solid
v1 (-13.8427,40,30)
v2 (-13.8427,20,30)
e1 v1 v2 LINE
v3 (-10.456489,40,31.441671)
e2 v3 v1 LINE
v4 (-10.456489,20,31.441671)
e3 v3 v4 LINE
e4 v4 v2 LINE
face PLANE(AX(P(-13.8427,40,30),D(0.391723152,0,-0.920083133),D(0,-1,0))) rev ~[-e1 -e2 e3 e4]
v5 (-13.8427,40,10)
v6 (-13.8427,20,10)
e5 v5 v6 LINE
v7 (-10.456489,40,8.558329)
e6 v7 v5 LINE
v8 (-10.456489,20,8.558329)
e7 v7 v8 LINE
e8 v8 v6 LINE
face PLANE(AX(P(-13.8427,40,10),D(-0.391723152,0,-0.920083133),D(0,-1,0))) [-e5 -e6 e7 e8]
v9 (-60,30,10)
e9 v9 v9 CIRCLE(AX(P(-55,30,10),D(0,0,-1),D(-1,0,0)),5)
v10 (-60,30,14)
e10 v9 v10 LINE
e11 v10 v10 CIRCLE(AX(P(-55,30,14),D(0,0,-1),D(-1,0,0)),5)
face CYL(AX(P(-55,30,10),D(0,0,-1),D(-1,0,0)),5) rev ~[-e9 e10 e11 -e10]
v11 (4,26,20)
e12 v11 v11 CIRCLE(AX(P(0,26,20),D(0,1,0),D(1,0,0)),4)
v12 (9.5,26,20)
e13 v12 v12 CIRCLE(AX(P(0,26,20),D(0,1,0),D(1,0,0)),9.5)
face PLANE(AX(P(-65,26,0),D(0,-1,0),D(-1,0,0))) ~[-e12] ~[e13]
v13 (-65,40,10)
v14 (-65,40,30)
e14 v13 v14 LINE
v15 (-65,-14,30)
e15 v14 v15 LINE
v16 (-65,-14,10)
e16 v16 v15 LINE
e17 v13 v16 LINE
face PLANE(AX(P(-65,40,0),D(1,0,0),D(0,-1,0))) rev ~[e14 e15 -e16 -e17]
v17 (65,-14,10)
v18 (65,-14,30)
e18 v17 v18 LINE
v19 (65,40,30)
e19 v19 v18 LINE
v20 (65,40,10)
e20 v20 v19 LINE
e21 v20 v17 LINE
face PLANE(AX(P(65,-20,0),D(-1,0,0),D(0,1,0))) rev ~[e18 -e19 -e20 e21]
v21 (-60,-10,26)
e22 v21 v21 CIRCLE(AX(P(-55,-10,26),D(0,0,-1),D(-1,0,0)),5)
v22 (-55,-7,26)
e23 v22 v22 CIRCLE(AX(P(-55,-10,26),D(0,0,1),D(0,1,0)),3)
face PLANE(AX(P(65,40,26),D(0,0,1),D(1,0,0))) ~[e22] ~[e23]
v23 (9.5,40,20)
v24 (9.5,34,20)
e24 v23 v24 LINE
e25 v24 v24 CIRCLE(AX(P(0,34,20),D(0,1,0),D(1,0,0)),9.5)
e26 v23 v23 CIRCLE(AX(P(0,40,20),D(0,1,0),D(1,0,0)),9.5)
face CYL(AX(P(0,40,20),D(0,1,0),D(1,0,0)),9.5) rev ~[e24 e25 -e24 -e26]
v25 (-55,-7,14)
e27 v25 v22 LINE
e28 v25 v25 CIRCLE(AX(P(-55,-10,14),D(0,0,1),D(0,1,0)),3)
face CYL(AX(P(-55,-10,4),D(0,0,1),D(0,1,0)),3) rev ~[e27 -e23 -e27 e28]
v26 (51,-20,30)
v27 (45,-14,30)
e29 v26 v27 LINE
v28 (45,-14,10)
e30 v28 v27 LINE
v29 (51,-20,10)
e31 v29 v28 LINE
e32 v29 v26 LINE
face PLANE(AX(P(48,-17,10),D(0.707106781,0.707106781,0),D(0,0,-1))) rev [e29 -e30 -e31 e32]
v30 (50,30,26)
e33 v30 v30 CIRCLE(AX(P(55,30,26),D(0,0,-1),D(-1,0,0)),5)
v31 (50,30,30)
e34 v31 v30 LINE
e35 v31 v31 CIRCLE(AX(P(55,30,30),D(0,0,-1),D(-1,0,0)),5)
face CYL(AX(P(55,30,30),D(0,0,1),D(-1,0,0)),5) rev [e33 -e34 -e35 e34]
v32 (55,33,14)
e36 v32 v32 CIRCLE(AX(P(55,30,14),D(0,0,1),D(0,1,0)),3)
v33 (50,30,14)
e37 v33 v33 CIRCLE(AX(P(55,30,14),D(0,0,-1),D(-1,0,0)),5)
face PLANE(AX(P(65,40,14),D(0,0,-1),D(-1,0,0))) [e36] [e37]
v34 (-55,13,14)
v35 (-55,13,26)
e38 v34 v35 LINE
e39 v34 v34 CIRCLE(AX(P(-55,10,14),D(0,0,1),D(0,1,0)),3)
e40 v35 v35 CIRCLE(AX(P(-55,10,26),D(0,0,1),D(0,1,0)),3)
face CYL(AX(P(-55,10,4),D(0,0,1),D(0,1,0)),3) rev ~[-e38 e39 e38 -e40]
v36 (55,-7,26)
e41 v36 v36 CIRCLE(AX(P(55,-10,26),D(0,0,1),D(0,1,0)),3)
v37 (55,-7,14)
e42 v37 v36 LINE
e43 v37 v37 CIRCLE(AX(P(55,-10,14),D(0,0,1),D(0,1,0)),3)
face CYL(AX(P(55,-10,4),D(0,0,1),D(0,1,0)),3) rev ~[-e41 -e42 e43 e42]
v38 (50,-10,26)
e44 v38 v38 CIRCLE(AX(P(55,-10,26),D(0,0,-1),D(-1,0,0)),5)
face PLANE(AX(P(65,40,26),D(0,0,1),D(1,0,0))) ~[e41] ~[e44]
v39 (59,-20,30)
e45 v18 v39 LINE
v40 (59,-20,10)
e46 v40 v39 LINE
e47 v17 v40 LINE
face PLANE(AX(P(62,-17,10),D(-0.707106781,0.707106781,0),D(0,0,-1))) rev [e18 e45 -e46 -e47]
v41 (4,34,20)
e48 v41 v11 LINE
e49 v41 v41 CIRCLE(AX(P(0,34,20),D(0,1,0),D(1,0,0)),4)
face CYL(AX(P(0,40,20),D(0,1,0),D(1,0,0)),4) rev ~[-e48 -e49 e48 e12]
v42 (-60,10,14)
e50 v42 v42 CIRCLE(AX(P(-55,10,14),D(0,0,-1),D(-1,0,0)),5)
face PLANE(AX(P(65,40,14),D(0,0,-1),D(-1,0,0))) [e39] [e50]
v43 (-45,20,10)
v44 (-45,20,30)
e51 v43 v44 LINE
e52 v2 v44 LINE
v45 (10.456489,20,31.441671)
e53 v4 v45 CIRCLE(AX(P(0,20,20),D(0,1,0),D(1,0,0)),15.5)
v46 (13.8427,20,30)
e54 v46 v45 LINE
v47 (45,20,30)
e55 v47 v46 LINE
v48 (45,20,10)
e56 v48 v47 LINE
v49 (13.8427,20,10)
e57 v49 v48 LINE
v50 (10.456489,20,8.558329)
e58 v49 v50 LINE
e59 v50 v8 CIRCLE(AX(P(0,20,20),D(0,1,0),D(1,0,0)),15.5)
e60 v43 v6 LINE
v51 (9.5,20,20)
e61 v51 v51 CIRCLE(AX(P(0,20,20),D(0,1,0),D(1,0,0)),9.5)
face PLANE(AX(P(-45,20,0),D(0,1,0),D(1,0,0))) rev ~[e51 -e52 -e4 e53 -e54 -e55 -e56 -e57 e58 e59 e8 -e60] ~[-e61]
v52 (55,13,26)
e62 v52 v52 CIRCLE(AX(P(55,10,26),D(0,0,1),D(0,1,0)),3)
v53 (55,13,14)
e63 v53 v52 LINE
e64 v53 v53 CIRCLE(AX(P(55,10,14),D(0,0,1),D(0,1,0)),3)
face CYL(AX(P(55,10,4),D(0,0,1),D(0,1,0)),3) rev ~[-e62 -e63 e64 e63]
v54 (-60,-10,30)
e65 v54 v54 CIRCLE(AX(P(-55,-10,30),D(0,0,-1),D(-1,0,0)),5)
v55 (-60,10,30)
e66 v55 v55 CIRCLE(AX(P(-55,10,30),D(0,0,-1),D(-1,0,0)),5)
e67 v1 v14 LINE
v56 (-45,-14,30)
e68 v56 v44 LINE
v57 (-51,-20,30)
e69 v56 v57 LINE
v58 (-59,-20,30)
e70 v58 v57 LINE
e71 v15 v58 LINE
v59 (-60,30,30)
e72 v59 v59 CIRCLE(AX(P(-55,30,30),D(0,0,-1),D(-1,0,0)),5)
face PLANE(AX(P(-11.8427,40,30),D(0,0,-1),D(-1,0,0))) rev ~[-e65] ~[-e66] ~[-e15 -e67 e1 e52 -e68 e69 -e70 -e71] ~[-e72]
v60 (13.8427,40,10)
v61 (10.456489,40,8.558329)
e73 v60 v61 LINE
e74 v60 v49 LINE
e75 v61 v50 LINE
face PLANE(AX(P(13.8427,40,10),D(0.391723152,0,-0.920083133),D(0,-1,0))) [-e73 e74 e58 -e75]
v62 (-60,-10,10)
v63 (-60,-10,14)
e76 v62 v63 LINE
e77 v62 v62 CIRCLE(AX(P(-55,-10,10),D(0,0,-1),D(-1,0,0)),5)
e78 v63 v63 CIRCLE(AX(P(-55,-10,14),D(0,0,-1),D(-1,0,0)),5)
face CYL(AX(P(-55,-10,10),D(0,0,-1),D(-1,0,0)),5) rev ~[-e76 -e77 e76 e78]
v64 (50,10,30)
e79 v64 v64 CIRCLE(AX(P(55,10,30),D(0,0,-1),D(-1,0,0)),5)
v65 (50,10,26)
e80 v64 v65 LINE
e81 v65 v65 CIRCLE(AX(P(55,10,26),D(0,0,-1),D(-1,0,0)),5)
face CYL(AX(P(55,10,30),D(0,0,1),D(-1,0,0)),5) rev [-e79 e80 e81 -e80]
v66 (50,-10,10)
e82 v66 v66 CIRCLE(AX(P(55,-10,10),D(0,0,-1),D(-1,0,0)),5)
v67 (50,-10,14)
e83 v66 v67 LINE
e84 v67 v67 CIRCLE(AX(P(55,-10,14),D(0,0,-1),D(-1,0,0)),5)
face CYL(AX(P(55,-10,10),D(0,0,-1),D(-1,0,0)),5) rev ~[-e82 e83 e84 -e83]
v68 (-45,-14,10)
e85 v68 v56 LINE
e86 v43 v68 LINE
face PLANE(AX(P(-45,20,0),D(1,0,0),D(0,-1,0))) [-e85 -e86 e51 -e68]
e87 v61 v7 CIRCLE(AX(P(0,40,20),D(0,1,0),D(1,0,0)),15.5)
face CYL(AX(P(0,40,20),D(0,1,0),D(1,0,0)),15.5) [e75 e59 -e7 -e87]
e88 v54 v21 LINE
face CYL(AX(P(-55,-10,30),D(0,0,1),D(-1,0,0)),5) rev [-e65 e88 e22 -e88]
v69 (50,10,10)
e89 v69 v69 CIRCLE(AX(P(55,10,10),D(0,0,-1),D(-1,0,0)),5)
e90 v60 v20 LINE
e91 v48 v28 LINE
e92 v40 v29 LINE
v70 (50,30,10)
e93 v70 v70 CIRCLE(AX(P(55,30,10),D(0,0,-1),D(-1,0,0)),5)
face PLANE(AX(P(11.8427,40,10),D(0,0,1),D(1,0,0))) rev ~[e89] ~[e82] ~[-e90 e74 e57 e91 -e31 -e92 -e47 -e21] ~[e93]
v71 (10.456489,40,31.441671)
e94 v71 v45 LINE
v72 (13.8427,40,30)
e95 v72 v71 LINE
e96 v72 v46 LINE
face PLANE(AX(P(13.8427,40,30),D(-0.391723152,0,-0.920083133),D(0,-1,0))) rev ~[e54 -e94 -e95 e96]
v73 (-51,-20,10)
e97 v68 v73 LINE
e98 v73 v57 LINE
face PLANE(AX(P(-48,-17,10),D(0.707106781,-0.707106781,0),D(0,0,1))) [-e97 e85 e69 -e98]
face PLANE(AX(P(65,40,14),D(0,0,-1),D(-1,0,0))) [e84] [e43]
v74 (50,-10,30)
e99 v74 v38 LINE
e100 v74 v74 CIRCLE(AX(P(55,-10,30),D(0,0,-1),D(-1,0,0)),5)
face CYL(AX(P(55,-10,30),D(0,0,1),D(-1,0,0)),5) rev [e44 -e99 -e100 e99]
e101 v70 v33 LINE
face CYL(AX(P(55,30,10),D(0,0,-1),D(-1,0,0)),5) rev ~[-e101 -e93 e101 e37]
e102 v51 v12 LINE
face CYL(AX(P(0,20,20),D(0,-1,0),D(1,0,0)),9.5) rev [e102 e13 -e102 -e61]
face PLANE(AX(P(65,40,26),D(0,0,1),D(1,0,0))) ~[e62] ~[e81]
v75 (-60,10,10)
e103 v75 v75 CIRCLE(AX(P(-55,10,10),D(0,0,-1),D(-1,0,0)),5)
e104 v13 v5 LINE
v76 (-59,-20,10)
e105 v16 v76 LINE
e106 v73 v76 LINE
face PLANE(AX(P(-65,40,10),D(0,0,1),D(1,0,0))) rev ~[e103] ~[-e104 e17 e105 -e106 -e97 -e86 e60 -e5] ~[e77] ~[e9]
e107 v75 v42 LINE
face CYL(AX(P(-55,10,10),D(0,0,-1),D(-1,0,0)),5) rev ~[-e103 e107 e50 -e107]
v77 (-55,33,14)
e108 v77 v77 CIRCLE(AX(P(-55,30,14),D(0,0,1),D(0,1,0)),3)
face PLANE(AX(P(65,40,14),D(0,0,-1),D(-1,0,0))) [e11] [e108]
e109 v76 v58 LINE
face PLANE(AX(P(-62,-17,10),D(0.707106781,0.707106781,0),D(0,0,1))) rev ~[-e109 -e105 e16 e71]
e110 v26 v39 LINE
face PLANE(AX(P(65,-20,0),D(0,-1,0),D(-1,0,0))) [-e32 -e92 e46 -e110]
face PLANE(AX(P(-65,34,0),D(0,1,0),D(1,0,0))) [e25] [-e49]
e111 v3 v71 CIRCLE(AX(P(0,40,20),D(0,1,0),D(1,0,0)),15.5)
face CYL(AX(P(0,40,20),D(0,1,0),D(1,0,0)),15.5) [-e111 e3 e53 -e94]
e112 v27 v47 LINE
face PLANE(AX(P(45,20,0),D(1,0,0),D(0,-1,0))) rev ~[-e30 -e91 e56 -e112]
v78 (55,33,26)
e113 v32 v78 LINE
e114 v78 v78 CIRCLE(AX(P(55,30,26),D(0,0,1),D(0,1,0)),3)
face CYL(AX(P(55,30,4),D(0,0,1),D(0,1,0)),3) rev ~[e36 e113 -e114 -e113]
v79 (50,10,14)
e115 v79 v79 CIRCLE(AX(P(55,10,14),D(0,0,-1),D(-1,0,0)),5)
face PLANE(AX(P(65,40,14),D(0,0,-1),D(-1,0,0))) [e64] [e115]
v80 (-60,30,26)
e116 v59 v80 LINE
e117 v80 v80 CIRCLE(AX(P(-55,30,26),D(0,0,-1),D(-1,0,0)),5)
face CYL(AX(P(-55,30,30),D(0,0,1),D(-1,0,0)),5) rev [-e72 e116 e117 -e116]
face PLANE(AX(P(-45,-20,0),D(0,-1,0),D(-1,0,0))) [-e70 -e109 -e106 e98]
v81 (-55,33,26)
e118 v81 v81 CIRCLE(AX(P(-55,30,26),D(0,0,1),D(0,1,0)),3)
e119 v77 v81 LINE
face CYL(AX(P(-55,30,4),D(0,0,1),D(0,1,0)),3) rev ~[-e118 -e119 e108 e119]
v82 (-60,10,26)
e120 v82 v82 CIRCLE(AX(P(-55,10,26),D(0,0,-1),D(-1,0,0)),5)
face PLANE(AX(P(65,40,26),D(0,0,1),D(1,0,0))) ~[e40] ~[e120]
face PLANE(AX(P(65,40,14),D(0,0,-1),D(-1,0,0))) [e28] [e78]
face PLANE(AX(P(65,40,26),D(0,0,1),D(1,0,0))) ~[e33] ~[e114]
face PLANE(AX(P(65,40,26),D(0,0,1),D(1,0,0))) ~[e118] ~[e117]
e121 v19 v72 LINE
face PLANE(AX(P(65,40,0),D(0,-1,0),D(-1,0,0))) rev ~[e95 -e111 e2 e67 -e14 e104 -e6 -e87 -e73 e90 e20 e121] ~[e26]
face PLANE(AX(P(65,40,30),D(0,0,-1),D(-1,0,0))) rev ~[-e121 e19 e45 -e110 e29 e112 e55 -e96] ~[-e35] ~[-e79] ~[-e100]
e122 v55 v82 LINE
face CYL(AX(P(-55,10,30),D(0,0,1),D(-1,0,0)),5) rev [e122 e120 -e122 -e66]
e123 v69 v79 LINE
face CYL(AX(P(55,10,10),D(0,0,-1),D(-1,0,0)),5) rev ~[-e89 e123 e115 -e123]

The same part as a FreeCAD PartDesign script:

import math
import FreeCAD as App
import Part
import Sketcher

V = App.Vector


def edges_at(feature, points):
    """Names of the edges that pass closest to the given points."""
    edges = feature.Shape.Edges
    near = lambda p: min(range(len(edges)), key=lambda i: edges[i].distToShape(Part.Vertex(*p))[0])
    return sorted({f"Edge{near(p) + 1}" for p in points})

doc = App.newDocument("Part")
body = doc.addObject("PartDesign::Body", "Body")

sketch1 = body.newObject("Sketcher::SketchObject", "Sketch")
sketch1.AttachmentSupport = (doc.getObject("XY_Plane"), [""])
sketch1.MapMode = "FlatFace"
sketch1.addGeometry([
    Part.LineSegment(V(45, -20, 0), V(65, -20, 0)),
    Part.LineSegment(V(65, -20, 0), V(65, 40, 0)),
    Part.LineSegment(V(65, 40, 0), V(-65, 40, 0)),
    Part.LineSegment(V(-65, 40, 0), V(-65, -20, 0)),
    Part.LineSegment(V(-65, -20, 0), V(-45, -20, 0)),
    Part.LineSegment(V(-45, -20, 0), V(-45, 20, 0)),
    Part.LineSegment(V(-45, 20, 0), V(45, 20, 0)),
    Part.LineSegment(V(45, 20, 0), V(45, -20, 0)),
], False)
sketch1.addConstraint([
    Sketcher.Constraint("Coincident", 0, 2, 1, 1),
    Sketcher.Constraint("Coincident", 1, 2, 2, 1),
    Sketcher.Constraint("Coincident", 2, 2, 3, 1),
    Sketcher.Constraint("Coincident", 3, 2, 4, 1),
    Sketcher.Constraint("Coincident", 4, 2, 5, 1),
    Sketcher.Constraint("Coincident", 5, 2, 6, 1),
    Sketcher.Constraint("Coincident", 6, 2, 7, 1),
    Sketcher.Constraint("Coincident", 7, 2, 0, 1),
    Sketcher.Constraint("Horizontal", 0),
    Sketcher.Constraint("Vertical", 1),
    Sketcher.Constraint("Horizontal", 2),
    Sketcher.Constraint("Vertical", 3),
    Sketcher.Constraint("Horizontal", 4),
    Sketcher.Constraint("Vertical", 5),
    Sketcher.Constraint("Horizontal", 6),
    Sketcher.Constraint("Vertical", 7),
    Sketcher.Constraint("Symmetric", 4, 2, 6, 2, -1, 1),
    Sketcher.Constraint("Symmetric", 0, 2, 3, 2, -2),
    Sketcher.Constraint("DistanceX", 0, 1, 0, 2, 20.0),
    Sketcher.Constraint("DistanceX", 6, 1, 6, 2, 90.0),
    Sketcher.Constraint("DistanceY", 0, 2, -1, 1, 20.0),
    Sketcher.Constraint("DistanceY", 5, 2, 2, 2, 20.0),
])
pad1 = body.newObject("PartDesign::Pad", "Pad")
pad1.Profile = sketch1
pad1.Length = 60

sketch2 = body.newObject("Sketcher::SketchObject", "Sketch001")
sketch2.AttachmentSupport = (doc.getObject("XY_Plane"), [""])
sketch2.MapMode = "FlatFace"
sketch2.addGeometry([
    Part.Circle(V(55, 10, 0), V(0, 0, 1), 3),
    Part.Circle(V(-55, 10, 0), V(0, 0, 1), 3),
    Part.Circle(V(-55, 30, 0), V(0, 0, 1), 3),
    Part.Circle(V(55, 30, 0), V(0, 0, 1), 3),
    Part.Circle(V(-55, -10, 0), V(0, 0, 1), 3),
    Part.Circle(V(55, -10, 0), V(0, 0, 1), 3),
], False)
sketch2.addConstraint([
    Sketcher.Constraint("Equal", 0, 1),
    Sketcher.Constraint("Equal", 1, 2),
    Sketcher.Constraint("Equal", 2, 3),
    Sketcher.Constraint("Equal", 3, 4),
    Sketcher.Constraint("Equal", 4, 5),
    Sketcher.Constraint("Symmetric", 0, 3, 4, 3, -1, 1),
    Sketcher.Constraint("Symmetric", 1, 3, 5, 3, -1, 1),
    Sketcher.Constraint("Symmetric", 0, 3, 1, 3, -2),
    Sketcher.Constraint("Symmetric", 2, 3, 3, 3, -2),
    Sketcher.Constraint("Vertical", 1, 3, 2, 3),
    Sketcher.Constraint("Diameter", 0, 6.0),
    Sketcher.Constraint("DistanceX", -1, 1, 0, 3, 55.0),
    Sketcher.Constraint("DistanceY", -1, 1, 0, 3, 10.0),
    Sketcher.Constraint("DistanceY", -1, 1, 2, 3, 30.0),
])
doc.recompute()
hole = body.newObject("PartDesign::Hole", "Hole")
hole.Profile = sketch2
hole.ThreadType = "None"
hole.Diameter = 6
hole.DepthType = "ThroughAll"
hole.HoleCutType = "Counterbore"
hole.HoleCutDiameter = 10
hole.HoleCutDepth = 4
hole.Reversed = True

sketch3 = body.newObject("Sketcher::SketchObject", "Sketch002")
sketch3.AttachmentSupport = (doc.getObject("XZ_Plane"), [""])
sketch3.MapMode = "FlatFace"
sketch3.AttachmentOffset = App.Placement(V(0, 0, -40), App.Rotation())
sketch3.addGeometry(Part.Circle(V(0, 20, 0), V(0, 0, 1), 4), False)
sketch3.addConstraint([
    Sketcher.Constraint("PointOnObject", 0, 3, -2),
    Sketcher.Constraint("Diameter", 0, 8.0),
    Sketcher.Constraint("DistanceY", -1, 1, 0, 3, 20.0),
])
pocket1 = body.newObject("PartDesign::Pocket", "Pocket")
pocket1.Profile = sketch3
pocket1.Length = 20
pocket1.Reversed = True

sketch4 = body.newObject("Sketcher::SketchObject", "Sketch003")
sketch4.AttachmentSupport = (doc.getObject("XZ_Plane"), [""])
sketch4.MapMode = "FlatFace"
sketch4.AttachmentOffset = App.Placement(V(0, 0, -40), App.Rotation())
sketch4.addGeometry([
    Part.Circle(V(0, 20, 0), V(0, 0, 1), 9.5),
    Part.Circle(V(0, 20, 0), V(0, 0, 1), 4),
], False)
sketch4.addConstraint([
    Sketcher.Constraint("Coincident", 1, 3, 0, 3),
    Sketcher.Constraint("PointOnObject", 0, 3, -2),
    Sketcher.Constraint("Diameter", 0, 19.0),
    Sketcher.Constraint("Diameter", 1, 8.0),
    Sketcher.Constraint("DistanceY", -1, 1, 0, 3, 20.0),
])
pocket2 = body.newObject("PartDesign::Pocket", "Pocket001")
pocket2.Profile = sketch4
pocket2.Length = 6
pocket2.Reversed = True
doc.recompute()

datumplane = body.newObject("PartDesign::Plane", "DatumPlane")
datumplane.AttachmentSupport = (doc.getObject("XZ_Plane"), [""])
datumplane.MapMode = "FlatFace"
datumplane.AttachmentOffset = App.Placement(V(0, 0, -30), App.Rotation())
mirrored = body.newObject("PartDesign::Mirrored", "Mirrored")
mirrored.Originals = [pocket2]
mirrored.MirrorPlane = (datumplane, [""])
body.Tip = mirrored

sketch5 = body.newObject("Sketcher::SketchObject", "Sketch004")
sketch5.AttachmentSupport = (doc.getObject("XZ_Plane"), [""])
sketch5.MapMode = "FlatFace"
sketch5.AttachmentOffset = App.Placement(V(0, 0, -40), App.Rotation())
sketch5.addGeometry([
    Part.ArcOfCircle(Part.Circle(V(0, 20, 0), V(0, 0, 1), 15.5), math.radians(-139.822184), math.radians(-40.177816)),
    Part.LineSegment(V(11.8427, 10, 0), V(65, 10, 0)),
    Part.LineSegment(V(65, 10, 0), V(65, 0, 0)),
    Part.LineSegment(V(65, 0, 0), V(-65, 0, 0)),
    Part.LineSegment(V(-65, 0, 0), V(-65, 10, 0)),
    Part.LineSegment(V(-65, 10, 0), V(-11.8427, 10, 0)),
    Part.LineSegment(V(65, 30, 0), V(11.8427, 30, 0)),
    Part.ArcOfCircle(Part.Circle(V(0, 20, 0), V(0, 0, 1), 15.5), math.radians(40.177816), math.radians(139.822184)),
    Part.LineSegment(V(-11.8427, 30, 0), V(-65, 30, 0)),
    Part.LineSegment(V(-65, 30, 0), V(-65, 60, 0)),
    Part.LineSegment(V(-65, 60, 0), V(65, 60, 0)),
    Part.LineSegment(V(65, 60, 0), V(65, 30, 0)),
], False)
sketch5.addConstraint([
    Sketcher.Constraint("Coincident", 0, 2, 1, 1),
    Sketcher.Constraint("Coincident", 1, 2, 2, 1),
    Sketcher.Constraint("Coincident", 2, 2, 3, 1),
    Sketcher.Constraint("Coincident", 3, 2, 4, 1),
    Sketcher.Constraint("Coincident", 4, 2, 5, 1),
    Sketcher.Constraint("Coincident", 5, 2, 0, 1),
    Sketcher.Constraint("Coincident", 6, 2, 7, 1),
    Sketcher.Constraint("Coincident", 7, 2, 8, 1),
    Sketcher.Constraint("Coincident", 8, 2, 9, 1),
    Sketcher.Constraint("Coincident", 9, 2, 10, 1),
    Sketcher.Constraint("Coincident", 10, 2, 11, 1),
    Sketcher.Constraint("Coincident", 11, 2, 6, 1),
    Sketcher.Constraint("Horizontal", 1),
    Sketcher.Constraint("Vertical", 2),
    Sketcher.Constraint("Horizontal", 3),
    Sketcher.Constraint("Vertical", 4),
    Sketcher.Constraint("Horizontal", 5),
    Sketcher.Constraint("Horizontal", 6),
    Sketcher.Constraint("Horizontal", 8),
    Sketcher.Constraint("Vertical", 9),
    Sketcher.Constraint("Horizontal", 10),
    Sketcher.Constraint("Vertical", 11),
    Sketcher.Constraint("Coincident", 7, 3, 0, 3),
    Sketcher.Constraint("Equal", 0, 7),
    Sketcher.Constraint("Symmetric", 2, 2, 3, 2, -1, 1),
    Sketcher.Constraint("Symmetric", 0, 2, 5, 2, -2),
    Sketcher.Constraint("Symmetric", 8, 2, 11, 2, -2),
    Sketcher.Constraint("Vertical", 0, 2, 6, 2),
    Sketcher.Constraint("Vertical", 4, 2, 8, 2),
    Sketcher.Constraint("Radius", 0, 15.5),
    Sketcher.Constraint("DistanceX", 3, 2, 3, 1, 130.0),
    Sketcher.Constraint("DistanceY", 2, 2, 2, 1, 10.0),
    Sketcher.Constraint("DistanceY", 9, 1, 9, 2, 30.0),
    Sketcher.Constraint("DistanceY", -1, 1, 0, 3, 20.0),
])
pocket3 = body.newObject("PartDesign::Pocket", "Pocket002")
pocket3.Profile = sketch5
pocket3.Type = "ThroughAll"
pocket3.Reversed = True

sketch6 = body.newObject("Sketcher::SketchObject", "Sketch005")
sketch6.AttachmentSupport = (doc.getObject("XY_Plane"), [""])
sketch6.MapMode = "FlatFace"
sketch6.AttachmentOffset = App.Placement(V(0, 0, 10), App.Rotation())
sketch6.addGeometry([
    Part.Circle(V(55, -10, 0), V(0, 0, 1), 5),
    Part.Circle(V(55, 10, 0), V(0, 0, 1), 5),
    Part.Circle(V(55, 30, 0), V(0, 0, 1), 5),
    Part.Circle(V(-55, 30, 0), V(0, 0, 1), 5),
    Part.Circle(V(-55, 10, 0), V(0, 0, 1), 5),
    Part.Circle(V(-55, -10, 0), V(0, 0, 1), 5),
], False)
sketch6.addConstraint([
    Sketcher.Constraint("Equal", 0, 1),
    Sketcher.Constraint("Equal", 1, 2),
    Sketcher.Constraint("Equal", 2, 3),
    Sketcher.Constraint("Equal", 3, 4),
    Sketcher.Constraint("Equal", 4, 5),
    Sketcher.Constraint("Symmetric", 0, 3, 4, 3, -1, 1),
    Sketcher.Constraint("Symmetric", 1, 3, 5, 3, -1, 1),
    Sketcher.Constraint("Symmetric", 2, 3, 3, 3, -2),
    Sketcher.Constraint("Symmetric", 1, 3, 4, 3, -2),
    Sketcher.Constraint("Vertical", 1, 3, 2, 3),
    Sketcher.Constraint("Diameter", 0, 10.0),
    Sketcher.Constraint("DistanceY", 0, 3, -1, 1, 10.0),
    Sketcher.Constraint("DistanceX", -1, 1, 0, 3, 55.0),
    Sketcher.Constraint("DistanceY", -1, 1, 2, 3, 30.0),
])
pocket4 = body.newObject("PartDesign::Pocket", "Pocket003")
pocket4.Profile = sketch6
pocket4.Length = 4
pocket4.Reversed = True
doc.recompute()

datumplane2 = body.newObject("PartDesign::Plane", "DatumPlane001")
datumplane2.AttachmentSupport = (doc.getObject("XY_Plane"), [""])
datumplane2.MapMode = "FlatFace"
datumplane2.AttachmentOffset = App.Placement(V(0, 0, 20), App.Rotation())
mirrored2 = body.newObject("PartDesign::Mirrored", "Mirrored001")
mirrored2.Originals = [pocket4]
mirrored2.MirrorPlane = (datumplane2, [""])
body.Tip = mirrored2
doc.recompute()

chamfer = body.newObject("PartDesign::Chamfer", "Chamfer")
chamfer.Base = (mirrored2, edges_at(mirrored2, [
    (11.843, 30, 10),
    (11.843, 30, 30),
    (-11.843, 30, 30),
    (-11.843, 30, 10),
]))
chamfer.Size = 2
doc.recompute()

chamfer2 = body.newObject("PartDesign::Chamfer", "Chamfer001")
chamfer2.Base = (chamfer, edges_at(chamfer, [
    (65, -20, 20),
    (45, -20, 20),
    (-45, -20, 20),
    (-65, -20, 20),
]))
chamfer2.Size = 6

doc.recompute()
